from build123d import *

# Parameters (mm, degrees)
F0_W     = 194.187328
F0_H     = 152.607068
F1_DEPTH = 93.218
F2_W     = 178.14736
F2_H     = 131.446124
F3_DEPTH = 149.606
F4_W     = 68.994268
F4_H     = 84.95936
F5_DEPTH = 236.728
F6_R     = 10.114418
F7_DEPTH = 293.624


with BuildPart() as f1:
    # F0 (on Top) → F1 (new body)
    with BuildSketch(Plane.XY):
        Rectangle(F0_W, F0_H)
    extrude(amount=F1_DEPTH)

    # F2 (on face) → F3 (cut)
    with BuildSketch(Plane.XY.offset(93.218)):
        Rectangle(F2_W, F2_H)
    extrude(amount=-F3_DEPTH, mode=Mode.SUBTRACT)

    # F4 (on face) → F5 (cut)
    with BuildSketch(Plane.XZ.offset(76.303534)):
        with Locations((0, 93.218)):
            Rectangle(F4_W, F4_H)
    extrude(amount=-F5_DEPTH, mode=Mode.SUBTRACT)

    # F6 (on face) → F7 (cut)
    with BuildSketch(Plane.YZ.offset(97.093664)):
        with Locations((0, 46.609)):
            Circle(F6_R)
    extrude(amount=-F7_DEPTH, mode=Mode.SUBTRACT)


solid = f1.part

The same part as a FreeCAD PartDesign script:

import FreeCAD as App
import Part
import Sketcher
Q = App.Units.Quantity


def add_polygon(sketch, points):
    """Adds a closed chain of lines whose ends are joined by coincident constraints."""
    first, n = sketch.GeometryCount, len(points)
    for a, b in zip(points, points[1:] + points[:1]):
        sketch.addGeometry(Part.LineSegment(App.Vector(*a, 0), App.Vector(*b, 0)), False)
    for i in range(n):
        sketch.addConstraint(Sketcher.Constraint("Coincident", first + i, 2, first + (i + 1) % n, 1))

doc = App.newDocument("Part")
body = doc.addObject("PartDesign::Body", "Body")

sketch1 = body.newObject("Sketcher::SketchObject", "Sketch")
sketch1.AttachmentSupport = (doc.getObject("XY_Plane"), [""])
sketch1.MapMode = "FlatFace"
add_polygon(sketch1, [(-97, 76), (-97, -76), (97, -76), (97, 76)])
sketch1.addConstraint(Sketcher.Constraint("Vertical", 0))
sketch1.addConstraint(Sketcher.Constraint("Horizontal", 1))
sketch1.addConstraint(Sketcher.Constraint("Vertical", 2))
sketch1.addConstraint(Sketcher.Constraint("Horizontal", 3))
sketch1.addConstraint(Sketcher.Constraint("Symmetric", 0, 2, 2, 2, -1, 1))
sketch1.addConstraint(Sketcher.Constraint("DistanceX", 1, 1, 1, 2, Q("194.187328 mm")))
sketch1.addConstraint(Sketcher.Constraint("DistanceY", 0, 2, 0, 1, Q("152.607068 mm")))
pad1 = body.newObject("PartDesign::Pad", "Pad")
pad1.Profile = sketch1
pad1.Length = Q("3.67 in")

sketch2 = body.newObject("Sketcher::SketchObject", "Sketch001")
sketch2.AttachmentSupport = (doc.getObject("XY_Plane"), [""])
sketch2.MapMode = "FlatFace"
sketch2.AttachmentOffset = App.Placement(App.Vector(0, 0, 3.67 * 25.4), App.Rotation())
add_polygon(sketch2, [(-89, 66), (-89, -66), (89, -66), (89, 66)])
sketch2.addConstraint(Sketcher.Constraint("Vertical", 0))
sketch2.addConstraint(Sketcher.Constraint("Horizontal", 1))
sketch2.addConstraint(Sketcher.Constraint("Vertical", 2))
sketch2.addConstraint(Sketcher.Constraint("Horizontal", 3))
sketch2.addConstraint(Sketcher.Constraint("Symmetric", 0, 2, 2, 2, -1, 1))
sketch2.addConstraint(Sketcher.Constraint("DistanceX", 1, 1, 1, 2, Q("178.14736 mm")))
sketch2.addConstraint(Sketcher.Constraint("DistanceY", 0, 2, 0, 1, Q("131.446124 mm")))
pocket1 = body.newObject("PartDesign::Pocket", "Pocket")
pocket1.Profile = sketch2
pocket1.Length = Q("5.89 in")

sketch3 = body.newObject("Sketcher::SketchObject", "Sketch002")
sketch3.AttachmentSupport = (doc.getObject("XZ_Plane"), [""])
sketch3.MapMode = "FlatFace"
sketch3.AttachmentOffset = App.Placement(App.Vector(0, 0, 76.303534), App.Rotation())
add_polygon(sketch3, [(-34, 136), (-34, 51), (34, 51), (34, 136)])
sketch3.addConstraint(Sketcher.Constraint("Vertical", 0))
sketch3.addConstraint(Sketcher.Constraint("Horizontal", 1))
sketch3.addConstraint(Sketcher.Constraint("Vertical", 2))
sketch3.addConstraint(Sketcher.Constraint("Horizontal", 3))
sketch3.addConstraint(Sketcher.Constraint("DistanceX", 1, 1, 1, 2, Q("68.994268 mm")))
sketch3.addConstraint(Sketcher.Constraint("DistanceY", 0, 2, 0, 1, Q("84.95936 mm")))
sketch3.addConstraint(Sketcher.Constraint("DistanceY", -1, 1, 0, 2, Q("50.73832 mm")))
sketch3.addConstraint(Sketcher.Constraint("DistanceX", 0, 2, -1, 1, Q("34.497134 mm")))
pocket2 = body.newObject("PartDesign::Pocket", "Pocket001")
pocket2.Profile = sketch3
pocket2.Length = Q("9.32 in")

sketch4 = body.newObject("Sketcher::SketchObject", "Sketch003")
sketch4.AttachmentSupport = (doc.getObject("YZ_Plane"), [""])
sketch4.MapMode = "FlatFace"
sketch4.AttachmentOffset = App.Placement(App.Vector(0, 0, 97.093664), App.Rotation())
sketch4.addGeometry(Part.Circle(App.Vector(0, 47, 0), App.Vector(0, 0, 1), 10), False)
sketch4.addConstraint(Sketcher.Constraint("PointOnObject", 0, 3, -2))
sketch4.addConstraint(Sketcher.Constraint("DistanceY", -1, 1, 0, 3, Q("1.835 in")))
sketch4.addConstraint(Sketcher.Constraint("Diameter", 0, Q("20.228836 mm")))
pocket3 = body.newObject("PartDesign::Pocket", "Pocket002")
pocket3.Profile = sketch4
pocket3.Length = Q("11.56 in")

doc.recompute()
